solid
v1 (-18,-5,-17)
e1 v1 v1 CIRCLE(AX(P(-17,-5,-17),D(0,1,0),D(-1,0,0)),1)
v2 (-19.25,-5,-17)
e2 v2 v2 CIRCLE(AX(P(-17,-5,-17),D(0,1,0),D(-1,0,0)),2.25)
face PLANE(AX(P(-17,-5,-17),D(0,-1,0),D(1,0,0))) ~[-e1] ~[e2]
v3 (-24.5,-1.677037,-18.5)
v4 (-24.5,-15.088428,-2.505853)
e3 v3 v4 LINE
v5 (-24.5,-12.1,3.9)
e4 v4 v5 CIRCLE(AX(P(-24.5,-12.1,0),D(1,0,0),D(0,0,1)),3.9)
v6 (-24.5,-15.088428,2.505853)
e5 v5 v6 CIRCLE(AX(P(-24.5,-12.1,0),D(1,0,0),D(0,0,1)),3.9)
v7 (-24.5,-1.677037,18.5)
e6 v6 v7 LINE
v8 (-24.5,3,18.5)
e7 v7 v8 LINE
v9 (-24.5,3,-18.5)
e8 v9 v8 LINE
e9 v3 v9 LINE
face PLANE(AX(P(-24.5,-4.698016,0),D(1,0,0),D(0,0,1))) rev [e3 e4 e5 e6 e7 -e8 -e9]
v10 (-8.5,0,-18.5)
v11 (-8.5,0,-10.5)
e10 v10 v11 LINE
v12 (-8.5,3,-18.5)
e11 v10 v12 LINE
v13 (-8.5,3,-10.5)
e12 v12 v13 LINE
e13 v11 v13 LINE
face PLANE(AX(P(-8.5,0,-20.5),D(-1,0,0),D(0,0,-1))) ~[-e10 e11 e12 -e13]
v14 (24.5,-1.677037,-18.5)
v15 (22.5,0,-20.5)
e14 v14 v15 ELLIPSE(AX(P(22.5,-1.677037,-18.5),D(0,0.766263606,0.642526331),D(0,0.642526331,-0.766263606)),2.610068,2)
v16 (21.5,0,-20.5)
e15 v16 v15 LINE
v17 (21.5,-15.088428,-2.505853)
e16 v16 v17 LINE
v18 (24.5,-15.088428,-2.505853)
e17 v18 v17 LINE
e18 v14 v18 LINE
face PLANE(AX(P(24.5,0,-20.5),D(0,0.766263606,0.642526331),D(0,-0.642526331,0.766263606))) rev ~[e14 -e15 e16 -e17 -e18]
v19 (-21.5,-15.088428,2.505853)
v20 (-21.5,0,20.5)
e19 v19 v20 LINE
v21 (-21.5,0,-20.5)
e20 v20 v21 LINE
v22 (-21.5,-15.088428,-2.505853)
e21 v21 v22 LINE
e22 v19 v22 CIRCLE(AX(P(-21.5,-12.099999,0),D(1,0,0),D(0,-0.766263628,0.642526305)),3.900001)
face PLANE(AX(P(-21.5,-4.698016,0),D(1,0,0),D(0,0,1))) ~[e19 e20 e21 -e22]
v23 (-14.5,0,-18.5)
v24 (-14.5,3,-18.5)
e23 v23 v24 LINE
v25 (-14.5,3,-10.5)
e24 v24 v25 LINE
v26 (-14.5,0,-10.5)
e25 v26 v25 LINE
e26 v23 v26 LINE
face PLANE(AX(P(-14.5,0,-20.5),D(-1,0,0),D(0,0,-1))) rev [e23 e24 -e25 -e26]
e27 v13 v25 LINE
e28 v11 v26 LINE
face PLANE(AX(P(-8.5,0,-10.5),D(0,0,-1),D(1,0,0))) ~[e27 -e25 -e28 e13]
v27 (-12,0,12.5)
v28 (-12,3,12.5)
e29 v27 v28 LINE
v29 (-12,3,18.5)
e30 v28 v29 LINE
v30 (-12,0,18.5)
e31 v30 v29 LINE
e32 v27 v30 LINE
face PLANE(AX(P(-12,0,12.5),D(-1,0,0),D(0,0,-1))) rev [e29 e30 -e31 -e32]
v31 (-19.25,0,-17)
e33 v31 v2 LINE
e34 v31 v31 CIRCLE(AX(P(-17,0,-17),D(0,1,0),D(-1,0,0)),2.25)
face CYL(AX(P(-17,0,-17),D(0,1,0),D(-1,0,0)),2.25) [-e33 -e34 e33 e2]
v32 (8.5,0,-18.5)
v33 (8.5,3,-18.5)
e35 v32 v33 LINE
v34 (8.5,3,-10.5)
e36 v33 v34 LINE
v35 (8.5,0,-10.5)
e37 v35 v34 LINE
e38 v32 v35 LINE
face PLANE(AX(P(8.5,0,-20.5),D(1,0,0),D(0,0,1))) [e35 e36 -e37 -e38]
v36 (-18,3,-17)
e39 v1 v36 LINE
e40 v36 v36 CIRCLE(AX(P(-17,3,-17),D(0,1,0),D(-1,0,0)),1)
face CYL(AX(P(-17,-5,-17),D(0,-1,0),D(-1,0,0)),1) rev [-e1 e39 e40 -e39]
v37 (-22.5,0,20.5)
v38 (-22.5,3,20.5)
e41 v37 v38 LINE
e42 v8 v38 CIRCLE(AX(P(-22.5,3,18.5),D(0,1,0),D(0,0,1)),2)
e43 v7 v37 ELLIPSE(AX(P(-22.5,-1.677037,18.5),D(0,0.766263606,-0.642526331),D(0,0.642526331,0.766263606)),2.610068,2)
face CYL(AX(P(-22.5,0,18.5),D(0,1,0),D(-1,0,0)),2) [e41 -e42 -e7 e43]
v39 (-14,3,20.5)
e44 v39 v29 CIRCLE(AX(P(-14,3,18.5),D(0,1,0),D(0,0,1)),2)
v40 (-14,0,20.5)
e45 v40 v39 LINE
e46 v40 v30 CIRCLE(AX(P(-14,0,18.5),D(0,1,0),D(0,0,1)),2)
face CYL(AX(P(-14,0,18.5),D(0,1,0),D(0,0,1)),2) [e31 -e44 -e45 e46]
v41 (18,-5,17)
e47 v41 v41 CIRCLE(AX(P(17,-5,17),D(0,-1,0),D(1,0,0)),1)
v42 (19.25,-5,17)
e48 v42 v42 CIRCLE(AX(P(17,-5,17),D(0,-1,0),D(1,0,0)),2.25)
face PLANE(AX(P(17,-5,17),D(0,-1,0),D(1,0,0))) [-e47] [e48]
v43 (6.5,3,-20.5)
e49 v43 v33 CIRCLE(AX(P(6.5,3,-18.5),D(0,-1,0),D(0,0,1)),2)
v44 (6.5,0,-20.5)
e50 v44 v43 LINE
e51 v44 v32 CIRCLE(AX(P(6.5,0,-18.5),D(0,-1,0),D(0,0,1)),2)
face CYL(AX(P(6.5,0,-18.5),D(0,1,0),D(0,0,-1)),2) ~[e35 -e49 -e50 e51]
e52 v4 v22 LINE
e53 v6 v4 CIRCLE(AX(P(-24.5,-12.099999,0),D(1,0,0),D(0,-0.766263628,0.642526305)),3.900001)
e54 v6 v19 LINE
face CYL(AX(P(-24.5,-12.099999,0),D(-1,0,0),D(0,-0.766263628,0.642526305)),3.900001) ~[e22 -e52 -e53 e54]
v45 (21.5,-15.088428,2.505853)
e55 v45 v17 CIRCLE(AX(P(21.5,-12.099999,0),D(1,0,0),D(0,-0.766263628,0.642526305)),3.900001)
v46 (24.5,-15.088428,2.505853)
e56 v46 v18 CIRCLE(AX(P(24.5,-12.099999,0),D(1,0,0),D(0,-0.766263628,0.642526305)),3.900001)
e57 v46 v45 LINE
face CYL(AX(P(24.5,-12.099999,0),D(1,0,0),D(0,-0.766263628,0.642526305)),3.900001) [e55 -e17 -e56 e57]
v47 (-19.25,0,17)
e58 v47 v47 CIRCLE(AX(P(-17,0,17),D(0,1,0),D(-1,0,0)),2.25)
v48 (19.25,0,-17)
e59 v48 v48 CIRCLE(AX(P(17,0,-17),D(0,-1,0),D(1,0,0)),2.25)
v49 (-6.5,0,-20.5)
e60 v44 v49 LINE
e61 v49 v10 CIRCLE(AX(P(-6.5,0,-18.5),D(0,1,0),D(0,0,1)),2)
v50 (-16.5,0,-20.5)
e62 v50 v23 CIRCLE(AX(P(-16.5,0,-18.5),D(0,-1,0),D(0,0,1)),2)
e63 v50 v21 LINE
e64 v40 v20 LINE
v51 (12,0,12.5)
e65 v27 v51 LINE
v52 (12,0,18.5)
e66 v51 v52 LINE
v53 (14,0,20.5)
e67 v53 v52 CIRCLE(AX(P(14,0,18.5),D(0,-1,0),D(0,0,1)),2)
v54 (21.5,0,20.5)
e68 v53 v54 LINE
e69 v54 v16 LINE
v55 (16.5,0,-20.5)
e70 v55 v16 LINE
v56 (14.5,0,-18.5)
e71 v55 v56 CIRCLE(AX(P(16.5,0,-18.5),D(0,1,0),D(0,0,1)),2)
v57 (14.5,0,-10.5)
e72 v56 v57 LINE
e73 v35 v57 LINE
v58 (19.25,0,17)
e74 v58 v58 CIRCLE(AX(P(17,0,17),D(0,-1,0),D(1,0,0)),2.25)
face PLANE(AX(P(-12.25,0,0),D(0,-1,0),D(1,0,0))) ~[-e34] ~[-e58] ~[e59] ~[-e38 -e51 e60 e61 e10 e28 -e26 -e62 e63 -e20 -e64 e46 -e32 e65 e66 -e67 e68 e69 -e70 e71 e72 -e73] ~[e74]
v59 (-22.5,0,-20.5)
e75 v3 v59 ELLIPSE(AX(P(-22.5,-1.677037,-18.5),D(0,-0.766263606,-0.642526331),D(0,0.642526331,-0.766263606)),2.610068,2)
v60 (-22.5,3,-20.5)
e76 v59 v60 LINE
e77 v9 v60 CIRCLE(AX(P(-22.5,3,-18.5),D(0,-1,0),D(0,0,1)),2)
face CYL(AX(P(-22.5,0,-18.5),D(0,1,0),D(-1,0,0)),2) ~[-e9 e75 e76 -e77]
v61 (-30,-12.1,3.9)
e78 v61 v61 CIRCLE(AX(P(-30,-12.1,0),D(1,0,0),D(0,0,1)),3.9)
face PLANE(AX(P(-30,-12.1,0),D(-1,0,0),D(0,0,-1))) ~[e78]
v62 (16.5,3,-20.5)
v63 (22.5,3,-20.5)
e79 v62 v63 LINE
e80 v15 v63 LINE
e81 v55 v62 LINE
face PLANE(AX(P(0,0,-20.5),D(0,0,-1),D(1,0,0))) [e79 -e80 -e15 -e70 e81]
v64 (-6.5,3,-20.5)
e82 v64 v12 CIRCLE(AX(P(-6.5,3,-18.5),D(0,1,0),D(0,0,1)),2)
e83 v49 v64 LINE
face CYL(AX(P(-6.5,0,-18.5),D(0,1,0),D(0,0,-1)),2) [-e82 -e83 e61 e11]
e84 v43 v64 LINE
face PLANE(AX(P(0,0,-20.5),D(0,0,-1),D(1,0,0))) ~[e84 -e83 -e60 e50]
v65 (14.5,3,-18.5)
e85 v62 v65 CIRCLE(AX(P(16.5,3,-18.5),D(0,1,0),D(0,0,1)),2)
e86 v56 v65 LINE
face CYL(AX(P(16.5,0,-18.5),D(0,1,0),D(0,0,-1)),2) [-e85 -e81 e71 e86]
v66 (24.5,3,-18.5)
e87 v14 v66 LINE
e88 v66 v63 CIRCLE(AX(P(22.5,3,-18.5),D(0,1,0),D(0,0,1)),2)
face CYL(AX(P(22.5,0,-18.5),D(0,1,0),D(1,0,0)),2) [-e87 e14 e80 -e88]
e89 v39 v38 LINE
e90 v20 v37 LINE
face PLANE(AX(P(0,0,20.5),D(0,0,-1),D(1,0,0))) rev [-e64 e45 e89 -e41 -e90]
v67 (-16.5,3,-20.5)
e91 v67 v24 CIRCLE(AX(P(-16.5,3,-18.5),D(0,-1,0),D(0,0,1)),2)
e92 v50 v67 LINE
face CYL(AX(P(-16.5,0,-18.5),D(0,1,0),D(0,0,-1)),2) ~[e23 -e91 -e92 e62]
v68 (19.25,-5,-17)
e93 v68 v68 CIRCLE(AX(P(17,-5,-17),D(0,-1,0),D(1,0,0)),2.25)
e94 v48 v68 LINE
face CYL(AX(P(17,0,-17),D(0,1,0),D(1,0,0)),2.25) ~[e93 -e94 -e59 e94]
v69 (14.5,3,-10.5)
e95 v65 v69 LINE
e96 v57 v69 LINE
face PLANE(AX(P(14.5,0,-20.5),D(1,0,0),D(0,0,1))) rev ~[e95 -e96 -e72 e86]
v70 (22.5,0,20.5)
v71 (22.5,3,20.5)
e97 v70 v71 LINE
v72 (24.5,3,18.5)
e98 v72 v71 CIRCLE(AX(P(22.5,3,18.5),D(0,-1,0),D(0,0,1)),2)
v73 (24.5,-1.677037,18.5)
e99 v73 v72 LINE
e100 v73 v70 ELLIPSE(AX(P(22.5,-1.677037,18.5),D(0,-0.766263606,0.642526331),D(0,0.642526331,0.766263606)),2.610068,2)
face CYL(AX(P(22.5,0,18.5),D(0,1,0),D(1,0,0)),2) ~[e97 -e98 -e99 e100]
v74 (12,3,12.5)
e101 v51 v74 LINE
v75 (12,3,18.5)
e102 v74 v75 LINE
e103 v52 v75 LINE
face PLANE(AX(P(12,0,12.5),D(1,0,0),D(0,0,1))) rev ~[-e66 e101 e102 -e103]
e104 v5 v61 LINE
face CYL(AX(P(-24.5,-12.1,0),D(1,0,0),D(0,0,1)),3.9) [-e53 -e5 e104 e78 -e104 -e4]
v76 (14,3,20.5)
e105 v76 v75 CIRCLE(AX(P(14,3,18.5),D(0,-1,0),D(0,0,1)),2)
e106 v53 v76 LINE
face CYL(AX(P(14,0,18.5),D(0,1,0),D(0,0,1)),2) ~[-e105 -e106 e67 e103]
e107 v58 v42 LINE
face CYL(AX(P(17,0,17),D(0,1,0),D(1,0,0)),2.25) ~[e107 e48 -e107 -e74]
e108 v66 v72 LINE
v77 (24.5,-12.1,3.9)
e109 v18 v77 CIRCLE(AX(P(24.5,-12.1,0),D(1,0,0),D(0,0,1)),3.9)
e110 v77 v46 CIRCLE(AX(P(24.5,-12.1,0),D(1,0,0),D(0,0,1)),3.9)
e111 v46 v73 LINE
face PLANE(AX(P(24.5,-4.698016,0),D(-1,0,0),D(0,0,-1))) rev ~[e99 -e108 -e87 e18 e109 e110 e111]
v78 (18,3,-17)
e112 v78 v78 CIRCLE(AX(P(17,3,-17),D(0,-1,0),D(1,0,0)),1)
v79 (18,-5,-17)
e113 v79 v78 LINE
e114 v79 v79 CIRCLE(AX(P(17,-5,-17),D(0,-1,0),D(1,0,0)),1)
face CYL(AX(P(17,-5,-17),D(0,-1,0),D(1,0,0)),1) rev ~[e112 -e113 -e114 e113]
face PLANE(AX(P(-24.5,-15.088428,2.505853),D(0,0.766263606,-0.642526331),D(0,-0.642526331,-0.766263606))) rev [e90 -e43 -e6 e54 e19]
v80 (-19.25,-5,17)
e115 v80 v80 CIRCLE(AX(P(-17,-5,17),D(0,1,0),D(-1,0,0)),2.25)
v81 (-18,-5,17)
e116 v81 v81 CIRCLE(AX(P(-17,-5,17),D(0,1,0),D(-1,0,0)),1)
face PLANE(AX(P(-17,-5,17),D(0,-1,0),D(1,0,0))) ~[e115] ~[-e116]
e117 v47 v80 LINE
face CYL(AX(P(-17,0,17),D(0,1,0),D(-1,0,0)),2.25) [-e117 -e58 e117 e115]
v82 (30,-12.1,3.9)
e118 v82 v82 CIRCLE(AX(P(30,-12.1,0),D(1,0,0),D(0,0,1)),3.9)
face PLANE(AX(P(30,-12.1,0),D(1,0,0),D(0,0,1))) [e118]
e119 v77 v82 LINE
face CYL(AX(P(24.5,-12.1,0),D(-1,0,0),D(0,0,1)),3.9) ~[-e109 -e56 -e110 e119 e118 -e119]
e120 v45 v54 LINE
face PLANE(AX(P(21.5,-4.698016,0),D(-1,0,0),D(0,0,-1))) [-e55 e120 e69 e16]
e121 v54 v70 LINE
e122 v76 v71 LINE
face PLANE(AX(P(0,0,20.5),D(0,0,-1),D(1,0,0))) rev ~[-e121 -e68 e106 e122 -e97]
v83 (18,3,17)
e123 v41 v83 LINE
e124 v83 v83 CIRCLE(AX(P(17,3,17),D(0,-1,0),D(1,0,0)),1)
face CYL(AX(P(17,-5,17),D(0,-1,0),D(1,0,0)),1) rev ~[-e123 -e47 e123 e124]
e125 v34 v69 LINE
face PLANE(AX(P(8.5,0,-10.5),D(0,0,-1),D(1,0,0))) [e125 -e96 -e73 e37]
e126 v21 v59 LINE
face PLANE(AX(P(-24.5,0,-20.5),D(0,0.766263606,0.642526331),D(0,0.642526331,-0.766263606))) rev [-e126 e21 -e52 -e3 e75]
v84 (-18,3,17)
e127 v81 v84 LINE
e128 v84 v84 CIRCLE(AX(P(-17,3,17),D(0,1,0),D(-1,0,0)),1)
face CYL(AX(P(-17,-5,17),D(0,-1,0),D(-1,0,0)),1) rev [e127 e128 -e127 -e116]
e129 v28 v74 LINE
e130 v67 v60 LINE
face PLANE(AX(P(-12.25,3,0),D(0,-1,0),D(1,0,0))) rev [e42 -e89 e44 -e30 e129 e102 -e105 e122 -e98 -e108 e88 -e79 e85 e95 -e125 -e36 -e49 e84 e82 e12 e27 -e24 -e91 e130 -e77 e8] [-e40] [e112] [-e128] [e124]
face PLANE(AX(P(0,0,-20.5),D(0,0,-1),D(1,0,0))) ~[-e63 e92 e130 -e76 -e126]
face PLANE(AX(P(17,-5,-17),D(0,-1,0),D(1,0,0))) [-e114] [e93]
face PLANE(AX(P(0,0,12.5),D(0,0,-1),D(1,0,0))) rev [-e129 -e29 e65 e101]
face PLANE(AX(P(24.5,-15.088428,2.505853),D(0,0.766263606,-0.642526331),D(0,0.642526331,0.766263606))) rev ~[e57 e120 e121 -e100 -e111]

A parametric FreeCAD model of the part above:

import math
import FreeCAD as App
import Part
import Sketcher

V = App.Vector
Q = App.Units.Quantity


def edges_at(feature, points):
    """Names of the edges that pass closest to the given points."""
    edges = feature.Shape.Edges
    near = lambda p: min(range(len(edges)), key=lambda i: edges[i].distToShape(Part.Vertex(*p))[0])
    return sorted({f"Edge{near(p) + 1}" for p in points})


def add_polygon(sketch, points):
    """Adds a closed chain of lines whose ends are joined by coincident constraints."""
    first, n = sketch.GeometryCount, len(points)
    for a, b in zip(points, points[1:] + points[:1]):
        sketch.addGeometry(Part.LineSegment(App.Vector(*a, 0), App.Vector(*b, 0)), False)
    for i in range(n):
        sketch.addConstraint(Sketcher.Constraint("Coincident", first + i, 2, first + (i + 1) % n, 1))

doc = App.newDocument("Part")
params = doc.addObject("Spreadsheet::Sheet", "Params")
for row, (alias, value) in enumerate([
    ("sketch1_height", "41 mm"),
    ("sketch1_width", "24.5 mm"),
    ("pad1_length", "3 mm"),
    ("sketch2_diameter", "4.5 mm"),
    ("pad2_length", "5 mm"),
    ("sketch3_radius", "3.900001 mm"),
    ("sketch3_height", "41 mm"),
    ("pad3_length", "3 mm"),
    ("sketch4_diameter", "7.8 mm"),
    ("pad4_length", "5.5 mm"),
    ("sketch5_width", "12 mm"),
    ("sketch5_height", "8 mm"),
    ("sketch6_width", "6 mm"),
    ("sketch6_height", "10 mm"),
    ("sketch7_diameter", "2 mm"),
    ("fillet_radius", "2 mm"),
], start=1):
    params.set(f"A{row}", alias)
    params.set(f"B{row}", "=" + value)
    params.setAlias(f"B{row}", alias)

body = doc.addObject("PartDesign::Body", "Body")

# Sketch on XZ plane
sketch1 = body.newObject("Sketcher::SketchObject", "Sketch")
sketch1.AttachmentSupport = (doc.getObject("XZ_Plane"), [""])
sketch1.MapMode = "FlatFace"
add_polygon(sketch1, [(0, 20.5), (0, -20.5), (24.5, -20.5), (24.5, 20.5)])  # lines 0-3
sketch1.addConstraint([
    Sketcher.Constraint("Vertical", 0),
    Sketcher.Constraint("Horizontal", 1),
    Sketcher.Constraint("Vertical", 2),
    Sketcher.Constraint("Horizontal", 3),
    Sketcher.Constraint("Symmetric", 0, 2, 3, 2, -1, 1),
    Sketcher.Constraint("DistanceY", 0, 2, 0, 1, Q("41 mm")),
    Sketcher.Constraint("DistanceX", 1, 1, 1, 2, Q("24.5 mm")),
])
sketch1.setExpression("Constraints[9]", "Params.sketch1_height")
sketch1.setExpression("Constraints[10]", "Params.sketch1_width")
pad1 = body.newObject("PartDesign::Pad", "Pad")
pad1.Profile = sketch1
pad1.setExpression("Length", "Params.pad1_length")
pad1.Reversed = True

# Sketch on XZ plane
sketch2 = body.newObject("Sketcher::SketchObject", "Sketch001")
sketch2.AttachmentSupport = (doc.getObject("XZ_Plane"), [""])
sketch2.MapMode = "FlatFace"
sketch2.addGeometry([
    Part.Circle(V(17, 17, 0), V(0, 0, 1), 2.25),
    Part.Circle(V(17, -17, 0), V(0, 0, 1), 2.25),
], False)
sketch2.addConstraint([
    Sketcher.Constraint("Equal", 0, 1),
    Sketcher.Constraint("Symmetric", 0, 3, 1, 3, -1),
    Sketcher.Constraint("Diameter", 0, Q("4.5 mm")),
    Sketcher.Constraint("DistanceX", -1, 1, 0, 3, Q("17 mm")),
    Sketcher.Constraint("DistanceY", -1, 1, 0, 3, Q("17 mm")),
])
sketch2.setExpression("Constraints[2]", "Params.sketch2_diameter")
pad2 = body.newObject("PartDesign::Pad", "Pad001")
pad2.Profile = sketch2
pad2.setExpression("Length", "Params.pad2_length")

# Sketch on YZ plane
sketch3 = body.newObject("Sketcher::SketchObject", "Sketch002")
sketch3.AttachmentSupport = (doc.getObject("YZ_Plane"), [""])
sketch3.MapMode = "FlatFace"
sketch3.AttachmentOffset = App.Placement(V(0, 0, 24.5), App.Rotation())
sketch3.addGeometry([
    Part.LineSegment(V(0, -20.5, 0), V(0, 20.5, 0)),
    Part.LineSegment(V(0, 20.5, 0), V(-15.088428, 2.505853, 0)),
    Part.ArcOfCircle(Part.Circle(V(-12.099999, 0, 0), V(0, 0, 1), 3.900001), math.radians(140.019541), math.radians(219.980459)),
    Part.LineSegment(V(-15.088428, -2.505853, 0), V(0, -20.5, 0)),
], False)
sketch3.addConstraint([
    Sketcher.Constraint("Coincident", 0, 2, 1, 1),
    Sketcher.Constraint("Tangent", 1, 2, 2, 1),
    Sketcher.Constraint("Tangent", 2, 2, 3, 1),
    Sketcher.Constraint("Coincident", 3, 2, 0, 1),
    Sketcher.Constraint("Vertical", 0),
    Sketcher.Constraint("Symmetric", 0, 2, 3, 2, -1, 1),
    Sketcher.Constraint("PointOnObject", 2, 3, -1),
    Sketcher.Constraint("Radius", 2, Q("3.900001 mm")),
    Sketcher.Constraint("DistanceY", 0, 1, 0, 2, Q("41 mm")),
    Sketcher.Constraint("DistanceX", 2, 3, -1, 1, Q("12.099999 mm")),
])
sketch3.setExpression("Constraints[7]", "Params.sketch3_radius")
sketch3.setExpression("Constraints[8]", "Params.sketch3_height")
pad3 = body.newObject("PartDesign::Pad", "Pad002")
pad3.Profile = sketch3
pad3.setExpression("Length", "Params.pad3_length")
pad3.Reversed = True

# Sketch on YZ plane
sketch4 = body.newObject("Sketcher::SketchObject", "Sketch003")
sketch4.AttachmentSupport = (doc.getObject("YZ_Plane"), [""])
sketch4.MapMode = "FlatFace"
sketch4.AttachmentOffset = App.Placement(V(0, 0, 24.5), App.Rotation())
sketch4.addGeometry(Part.Circle(V(-12.1, 0, 0), V(0, 0, 1), 3.9), False)
sketch4.addConstraint([
    Sketcher.Constraint("PointOnObject", 0, 3, -1),
    Sketcher.Constraint("Diameter", 0, Q("7.8 mm")),
    Sketcher.Constraint("DistanceX", 0, 3, -1, 1, Q("12.1 mm")),
])
sketch4.setExpression("Constraints[1]", "Params.sketch4_diameter")
pad4 = body.newObject("PartDesign::Pad", "Pad003")
pad4.Profile = sketch4
pad4.setExpression("Length", "Params.pad4_length")

# Sketch on XZ plane
sketch5 = body.newObject("Sketcher::SketchObject", "Sketch004")
sketch5.AttachmentSupport = (doc.getObject("XZ_Plane"), [""])
sketch5.MapMode = "FlatFace"
add_polygon(sketch5, [(0, 20.5), (0, 12.5), (12, 12.5), (12, 20.5)])  # lines 0-3
sketch5.addConstraint([
    Sketcher.Constraint("Vertical", 0),
    Sketcher.Constraint("Horizontal", 1),
    Sketcher.Constraint("Vertical", 2),
    Sketcher.Constraint("Horizontal", 3),
    Sketcher.Constraint("PointOnObject", 0, 2, -2),
    Sketcher.Constraint("DistanceX", 1, 1, 1, 2, Q("12 mm")),
    Sketcher.Constraint("DistanceY", 0, 2, 0, 1, Q("8 mm")),
    Sketcher.Constraint("DistanceY", -1, 1, 0, 2, Q("12.5 mm")),
])
sketch5.setExpression("Constraints[9]", "Params.sketch5_width")
sketch5.setExpression("Constraints[10]", "Params.sketch5_height")
pocket1 = body.newObject("PartDesign::Pocket", "Pocket")
pocket1.Profile = sketch5
pocket1.Type = "ThroughAll"

# Sketch on XZ plane
sketch6 = body.newObject("Sketcher::SketchObject", "Sketch005")
sketch6.AttachmentSupport = (doc.getObject("XZ_Plane"), [""])
sketch6.MapMode = "FlatFace"
add_polygon(sketch6, [(8.5, -10.5), (8.5, -20.5), (14.5, -20.5), (14.5, -10.5)])  # lines 0-3
sketch6.addConstraint([
    Sketcher.Constraint("Vertical", 0),
    Sketcher.Constraint("Horizontal", 1),
    Sketcher.Constraint("Vertical", 2),
    Sketcher.Constraint("Horizontal", 3),
    Sketcher.Constraint("DistanceX", 1, 1, 1, 2, Q("6 mm")),
    Sketcher.Constraint("DistanceY", 0, 2, 0, 1, Q("10 mm")),
    Sketcher.Constraint("DistanceX", -1, 1, 0, 2, Q("8.5 mm")),
    Sketcher.Constraint("DistanceY", 0, 2, -1, 1, Q("20.5 mm")),
])
sketch6.setExpression("Constraints[8]", "Params.sketch6_width")
sketch6.setExpression("Constraints[9]", "Params.sketch6_height")
pocket2 = body.newObject("PartDesign::Pocket", "Pocket001")
pocket2.Profile = sketch6
pocket2.Type = "ThroughAll"

# Sketch on XZ plane
sketch7 = body.newObject("Sketcher::SketchObject", "Sketch006")
sketch7.AttachmentSupport = (doc.getObject("XZ_Plane"), [""])
sketch7.MapMode = "FlatFace"
sketch7.AttachmentOffset = App.Placement(V(0, 0, 5), App.Rotation())
sketch7.addGeometry([
    Part.Circle(V(17, 17, 0), V(0, 0, 1), 1),
    Part.Circle(V(17, -17, 0), V(0, 0, 1), 1),
], False)
sketch7.addConstraint([
    Sketcher.Constraint("Equal", 0, 1),
    Sketcher.Constraint("Symmetric", 0, 3, 1, 3, -1),
    Sketcher.Constraint("Diameter", 0, Q("2 mm")),
    Sketcher.Constraint("DistanceX", -1, 1, 0, 3, Q("17 mm")),
    Sketcher.Constraint("DistanceY", -1, 1, 0, 3, Q("17 mm")),
])
sketch7.setExpression("Constraints[2]", "Params.sketch7_diameter")
pocket3 = body.newObject("PartDesign::Pocket", "Pocket002")
pocket3.Profile = sketch7
pocket3.Type = "ThroughAll"
doc.recompute()

fillet = body.newObject("PartDesign::Fillet", "Fillet")
fillet.Base = (pocket3, edges_at(pocket3, [
    (8.5, 1.5, -20.5),
    (12, 1.5, 20.5),
    (24.5, 1.5, 20.5),
    (24.5, 1.5, -20.5),
    (14.5, 1.5, -20.5),
]))
fillet.setExpression("Radius", "Params.fillet_radius")
body2 = doc.addObject("PartDesign::Body", "Body001")
doc.recompute()

body2.BaseFeature = body
doc.recompute()

mirroring = doc.addObject("Part::Mirroring", "Mirroring")
mirroring.Source = body
mirroring.Base = V(0, 0, 0)
mirroring.Normal = V(1, 0, 0)
body3 = doc.addObject("PartDesign::Body", "Body002")
body3.BaseFeature = mirroring
boolean = body2.newObject("PartDesign::Boolean", "Boolean")
boolean.Type = "Fuse"
boolean.addObjects([body3])
doc.recompute()
mirroring.Visibility = False

doc.recompute()
